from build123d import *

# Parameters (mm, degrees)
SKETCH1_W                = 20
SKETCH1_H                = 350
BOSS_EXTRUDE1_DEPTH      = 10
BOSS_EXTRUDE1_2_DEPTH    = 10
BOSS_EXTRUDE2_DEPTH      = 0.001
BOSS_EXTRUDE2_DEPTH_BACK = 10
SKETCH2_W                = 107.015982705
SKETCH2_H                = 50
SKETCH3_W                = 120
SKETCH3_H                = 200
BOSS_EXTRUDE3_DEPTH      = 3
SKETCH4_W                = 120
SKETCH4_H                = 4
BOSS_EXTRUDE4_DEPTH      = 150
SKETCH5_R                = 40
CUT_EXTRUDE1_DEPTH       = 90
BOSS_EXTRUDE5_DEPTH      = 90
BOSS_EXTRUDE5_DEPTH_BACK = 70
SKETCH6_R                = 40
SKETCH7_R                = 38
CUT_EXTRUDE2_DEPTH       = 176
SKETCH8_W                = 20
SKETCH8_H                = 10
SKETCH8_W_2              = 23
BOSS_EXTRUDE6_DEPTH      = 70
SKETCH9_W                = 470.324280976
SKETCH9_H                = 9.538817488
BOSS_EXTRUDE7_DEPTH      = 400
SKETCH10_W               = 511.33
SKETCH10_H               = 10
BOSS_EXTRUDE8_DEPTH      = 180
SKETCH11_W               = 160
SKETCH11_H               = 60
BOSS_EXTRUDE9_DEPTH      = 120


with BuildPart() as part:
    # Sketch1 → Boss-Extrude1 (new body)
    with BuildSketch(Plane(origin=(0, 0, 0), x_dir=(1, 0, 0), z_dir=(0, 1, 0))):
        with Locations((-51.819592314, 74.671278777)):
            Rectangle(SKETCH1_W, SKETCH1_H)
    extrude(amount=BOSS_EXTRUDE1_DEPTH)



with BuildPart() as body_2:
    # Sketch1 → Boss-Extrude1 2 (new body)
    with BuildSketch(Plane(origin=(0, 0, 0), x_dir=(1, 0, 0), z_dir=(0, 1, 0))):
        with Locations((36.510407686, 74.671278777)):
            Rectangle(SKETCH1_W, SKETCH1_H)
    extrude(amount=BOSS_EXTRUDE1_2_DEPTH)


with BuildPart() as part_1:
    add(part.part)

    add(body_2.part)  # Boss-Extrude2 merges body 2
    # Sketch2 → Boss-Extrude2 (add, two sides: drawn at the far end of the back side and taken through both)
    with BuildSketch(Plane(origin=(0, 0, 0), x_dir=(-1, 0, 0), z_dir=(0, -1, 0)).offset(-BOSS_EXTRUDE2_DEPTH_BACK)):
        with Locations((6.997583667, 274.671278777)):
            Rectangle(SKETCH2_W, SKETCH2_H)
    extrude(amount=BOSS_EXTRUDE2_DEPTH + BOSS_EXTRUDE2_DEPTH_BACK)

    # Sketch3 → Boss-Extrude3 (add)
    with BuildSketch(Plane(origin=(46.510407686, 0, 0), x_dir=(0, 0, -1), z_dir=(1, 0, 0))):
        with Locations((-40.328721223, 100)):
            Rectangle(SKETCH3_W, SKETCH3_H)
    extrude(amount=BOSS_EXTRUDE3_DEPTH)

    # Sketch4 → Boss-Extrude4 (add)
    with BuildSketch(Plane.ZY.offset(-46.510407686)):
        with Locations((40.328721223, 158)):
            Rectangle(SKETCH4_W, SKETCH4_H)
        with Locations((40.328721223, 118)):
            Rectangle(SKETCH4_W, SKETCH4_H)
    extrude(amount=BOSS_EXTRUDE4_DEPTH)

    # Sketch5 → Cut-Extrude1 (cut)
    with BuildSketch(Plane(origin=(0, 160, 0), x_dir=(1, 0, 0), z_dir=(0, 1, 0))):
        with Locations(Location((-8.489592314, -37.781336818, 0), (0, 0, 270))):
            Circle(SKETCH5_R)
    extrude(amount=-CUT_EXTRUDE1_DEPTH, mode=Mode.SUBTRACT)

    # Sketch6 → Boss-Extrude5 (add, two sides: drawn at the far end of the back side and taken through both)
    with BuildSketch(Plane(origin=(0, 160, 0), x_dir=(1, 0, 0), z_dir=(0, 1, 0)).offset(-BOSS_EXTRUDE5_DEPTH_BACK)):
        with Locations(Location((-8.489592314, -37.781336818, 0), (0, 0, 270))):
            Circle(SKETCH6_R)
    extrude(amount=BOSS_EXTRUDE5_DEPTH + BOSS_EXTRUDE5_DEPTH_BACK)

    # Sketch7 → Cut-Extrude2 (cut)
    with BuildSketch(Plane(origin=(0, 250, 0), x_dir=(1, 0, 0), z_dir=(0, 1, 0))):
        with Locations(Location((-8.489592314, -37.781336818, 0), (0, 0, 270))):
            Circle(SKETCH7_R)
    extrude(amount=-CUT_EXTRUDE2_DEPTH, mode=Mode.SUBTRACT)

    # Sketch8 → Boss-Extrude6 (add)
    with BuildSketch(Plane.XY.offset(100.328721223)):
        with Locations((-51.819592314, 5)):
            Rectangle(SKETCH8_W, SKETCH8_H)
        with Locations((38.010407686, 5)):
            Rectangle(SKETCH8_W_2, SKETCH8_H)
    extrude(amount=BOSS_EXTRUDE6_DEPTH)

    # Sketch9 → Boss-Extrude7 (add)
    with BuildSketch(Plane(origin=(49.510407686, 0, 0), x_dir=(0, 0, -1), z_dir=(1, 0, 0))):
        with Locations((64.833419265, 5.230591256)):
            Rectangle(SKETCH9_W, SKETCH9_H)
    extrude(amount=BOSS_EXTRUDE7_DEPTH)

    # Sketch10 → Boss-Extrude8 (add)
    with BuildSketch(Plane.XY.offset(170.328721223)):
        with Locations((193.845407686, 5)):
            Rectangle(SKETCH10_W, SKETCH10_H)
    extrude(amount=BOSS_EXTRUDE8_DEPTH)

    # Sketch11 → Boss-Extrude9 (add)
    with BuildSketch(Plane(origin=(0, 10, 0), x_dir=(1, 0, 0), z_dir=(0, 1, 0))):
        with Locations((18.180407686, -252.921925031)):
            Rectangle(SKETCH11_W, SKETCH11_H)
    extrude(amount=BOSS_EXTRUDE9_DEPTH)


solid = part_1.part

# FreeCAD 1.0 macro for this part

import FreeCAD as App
import Part
import Sketcher
Q = App.Units.Quantity

doc = App.newDocument("Part")
body = doc.addObject("PartDesign::Body", "Body")

sketch1 = body.newObject("Sketcher::SketchObject", "Sketch")
sketch1.AttachmentSupport = (doc.getObject("XZ_Plane"), [""])
sketch1.MapMode = "FlatFace"
sketch1.addGeometry([
    Part.LineSegment(App.Vector(-61.819592, -249.671279, 0), App.Vector(-61.819592, 100.328721, 0)),
    Part.LineSegment(App.Vector(-61.819592, 100.328721, 0), App.Vector(-41.819592, 100.328721, 0)),
    Part.LineSegment(App.Vector(-41.819592, 100.328721, 0), App.Vector(-41.819592, -249.671279, 0)),
    Part.LineSegment(App.Vector(-41.819592, -249.671279, 0), App.Vector(-61.819592, -249.671279, 0)),
], False)
sketch1.addConstraint([
    Sketcher.Constraint("Coincident", 0, 2, 1, 1),
    Sketcher.Constraint("Coincident", 1, 2, 2, 1),
    Sketcher.Constraint("Coincident", 2, 2, 3, 1),
    Sketcher.Constraint("Coincident", 3, 2, 0, 1),
    Sketcher.Constraint("Vertical", 0),
    Sketcher.Constraint("Horizontal", 1),
    Sketcher.Constraint("Vertical", 2),
    Sketcher.Constraint("Horizontal", 3),
    Sketcher.Constraint("DistanceX", 1, 1, 1, 2, Q("20 mm")),
    Sketcher.Constraint("DistanceY", 0, 1, 0, 2, Q("350 mm")),
    Sketcher.Constraint("DistanceY", -1, 1, 0, 2, Q("100.328721 mm")),
    Sketcher.Constraint("DistanceX", 0, 2, -1, 1, Q("61.819592 mm")),
])
pad1 = body.newObject("PartDesign::Pad", "Pad")
pad1.Profile = sketch1
pad1.Length = 10
pad1.Reversed = True
body2 = doc.addObject("PartDesign::Body", "Body001")

sketch2 = body2.newObject("Sketcher::SketchObject", "Sketch001")
sketch2.AttachmentSupport = (doc.getObject("XZ_Plane001"), [""])
sketch2.MapMode = "FlatFace"
sketch2.addGeometry([
    Part.LineSegment(App.Vector(26.510408, -249.671279, 0), App.Vector(26.510408, 100.328721, 0)),
    Part.LineSegment(App.Vector(26.510408, 100.328721, 0), App.Vector(46.510408, 100.328721, 0)),
    Part.LineSegment(App.Vector(46.510408, 100.328721, 0), App.Vector(46.510408, -249.671279, 0)),
    Part.LineSegment(App.Vector(46.510408, -249.671279, 0), App.Vector(26.510408, -249.671279, 0)),
], False)
sketch2.addConstraint([
    Sketcher.Constraint("Coincident", 0, 2, 1, 1),
    Sketcher.Constraint("Coincident", 1, 2, 2, 1),
    Sketcher.Constraint("Coincident", 2, 2, 3, 1),
    Sketcher.Constraint("Coincident", 3, 2, 0, 1),
    Sketcher.Constraint("Vertical", 0),
    Sketcher.Constraint("Horizontal", 1),
    Sketcher.Constraint("Vertical", 2),
    Sketcher.Constraint("Horizontal", 3),
    Sketcher.Constraint("DistanceX", 1, 1, 1, 2, Q("20 mm")),
    Sketcher.Constraint("DistanceY", 0, 1, 0, 2, Q("350 mm")),
    Sketcher.Constraint("DistanceY", -1, 1, 0, 2, Q("100.328721 mm")),
    Sketcher.Constraint("DistanceX", -1, 1, 0, 2, Q("26.510408 mm")),
])
pad2 = body2.newObject("PartDesign::Pad", "Pad001")
pad2.Profile = sketch2
pad2.Length = 10
pad2.Reversed = True
body.AllowCompound = True
doc.recompute()

boolean = body.newObject("PartDesign::Boolean", "Boolean")
boolean.Type = "Fuse"
boolean.addObjects([body2])

sketch3 = body.newObject("Sketcher::SketchObject", "Sketch002")
sketch3.AttachmentSupport = (doc.getObject("XZ_Plane"), [""])
sketch3.MapMode = "FlatFace"
sketch3.addGeometry([
    Part.LineSegment(App.Vector(46.510408, -299.671279, 0), App.Vector(46.510408, -249.671279, 0)),
    Part.LineSegment(App.Vector(46.510408, -249.671279, 0), App.Vector(-60.505575, -249.671279, 0)),
    Part.LineSegment(App.Vector(-60.505575, -249.671279, 0), App.Vector(-60.505575, -299.671279, 0)),
    Part.LineSegment(App.Vector(-60.505575, -299.671279, 0), App.Vector(46.510408, -299.671279, 0)),
], False)
sketch3.addConstraint([
    Sketcher.Constraint("Coincident", 0, 2, 1, 1),
    Sketcher.Constraint("Coincident", 1, 2, 2, 1),
    Sketcher.Constraint("Coincident", 2, 2, 3, 1),
    Sketcher.Constraint("Coincident", 3, 2, 0, 1),
    Sketcher.Constraint("Vertical", 0),
    Sketcher.Constraint("Horizontal", 1),
    Sketcher.Constraint("Vertical", 2),
    Sketcher.Constraint("Horizontal", 3),
    Sketcher.Constraint("DistanceY", 0, 1, 0, 2, Q("50 mm")),
    Sketcher.Constraint("DistanceX", 1, 2, 1, 1, Q("107.015983 mm")),
    Sketcher.Constraint("DistanceY", 0, 2, -1, 1, Q("249.671279 mm")),
    Sketcher.Constraint("DistanceX", -1, 1, 0, 2, Q("46.510408 mm")),
])
pad3 = body.newObject("PartDesign::Pad", "Pad002")
pad3.Profile = sketch3
pad3.Type = "TwoLengths"
pad3.Length = 0.001
pad3.Length2 = 10

sketch4 = body.newObject("Sketcher::SketchObject", "Sketch003")
sketch4.AttachmentSupport = (doc.getObject("YZ_Plane"), [""])
sketch4.MapMode = "FlatFace"
sketch4.AttachmentOffset = App.Placement(App.Vector(0, 0, 46.510408), App.Rotation())
sketch4.addGeometry([
    Part.LineSegment(App.Vector(200, 100.328721, 0), App.Vector(0, 100.328721, 0)),
    Part.LineSegment(App.Vector(0, 100.328721, 0), App.Vector(0, -19.671279, 0)),
    Part.LineSegment(App.Vector(0, -19.671279, 0), App.Vector(200, -19.671279, 0)),
    Part.LineSegment(App.Vector(200, -19.671279, 0), App.Vector(200, 100.328721, 0)),
], False)
sketch4.addConstraint([
    Sketcher.Constraint("Coincident", 0, 2, 1, 1),
    Sketcher.Constraint("Coincident", 1, 2, 2, 1),
    Sketcher.Constraint("Coincident", 2, 2, 3, 1),
    Sketcher.Constraint("Coincident", 3, 2, 0, 1),
    Sketcher.Constraint("Horizontal", 0),
    Sketcher.Constraint("Vertical", 1),
    Sketcher.Constraint("Horizontal", 2),
    Sketcher.Constraint("Vertical", 3),
    Sketcher.Constraint("PointOnObject", 0, 2, -2),
    Sketcher.Constraint("DistanceX", 0, 2, 0, 1, Q("200 mm")),
    Sketcher.Constraint("DistanceY", 1, 2, 1, 1, Q("120 mm")),
    Sketcher.Constraint("DistanceY", -1, 1, 0, 2, Q("100.328721 mm")),
])
pad4 = body.newObject("PartDesign::Pad", "Pad003")
pad4.Profile = sketch4
pad4.Length = 3

sketch5 = body.newObject("Sketcher::SketchObject", "Sketch004")
sketch5.AttachmentSupport = (doc.getObject("YZ_Plane"), [""])
sketch5.MapMode = "FlatFace"
sketch5.AttachmentOffset = App.Placement(App.Vector(0, 0, 46.510408), App.Rotation())
sketch5.addGeometry([
    Part.LineSegment(App.Vector(160, -19.671279, 0), App.Vector(156, -19.671279, 0)),
    Part.LineSegment(App.Vector(156, -19.671279, 0), App.Vector(156, 100.328721, 0)),
    Part.LineSegment(App.Vector(156, 100.328721, 0), App.Vector(160, 100.328721, 0)),
    Part.LineSegment(App.Vector(160, 100.328721, 0), App.Vector(160, -19.671279, 0)),
    Part.LineSegment(App.Vector(120, -19.671279, 0), App.Vector(116, -19.671279, 0)),
    Part.LineSegment(App.Vector(116, -19.671279, 0), App.Vector(116, 100.328721, 0)),
    Part.LineSegment(App.Vector(116, 100.328721, 0), App.Vector(120, 100.328721, 0)),
    Part.LineSegment(App.Vector(120, 100.328721, 0), App.Vector(120, -19.671279, 0)),
], False)
sketch5.addConstraint([
    Sketcher.Constraint("Coincident", 0, 2, 1, 1),
    Sketcher.Constraint("Coincident", 1, 2, 2, 1),
    Sketcher.Constraint("Coincident", 2, 2, 3, 1),
    Sketcher.Constraint("Coincident", 3, 2, 0, 1),
    Sketcher.Constraint("Coincident", 4, 2, 5, 1),
    Sketcher.Constraint("Coincident", 5, 2, 6, 1),
    Sketcher.Constraint("Coincident", 6, 2, 7, 1),
    Sketcher.Constraint("Coincident", 7, 2, 4, 1),
    Sketcher.Constraint("Horizontal", 0),
    Sketcher.Constraint("Vertical", 1),
    Sketcher.Constraint("Horizontal", 2),
    Sketcher.Constraint("Vertical", 3),
    Sketcher.Constraint("Horizontal", 4),
    Sketcher.Constraint("Vertical", 5),
    Sketcher.Constraint("Horizontal", 6),
    Sketcher.Constraint("Vertical", 7),
    Sketcher.Constraint("Horizontal", 3, 2, 4, 2),
    Sketcher.Constraint("Horizontal", 2, 2, 5, 2),
    Sketcher.Constraint("Equal", 2, 4),
    Sketcher.Constraint("DistanceX", 0, 2, 0, 1, Q("4 mm")),
    Sketcher.Constraint("DistanceY", 1, 1, 1, 2, Q("120 mm")),
    Sketcher.Constraint("DistanceX", -1, 1, 0, 2, Q("156 mm")),
    Sketcher.Constraint("DistanceX", -1, 1, 4, 2, Q("116 mm")),
    Sketcher.Constraint("DistanceY", 0, 2, -1, 1, Q("19.671279 mm")),
])
pad5 = body.newObject("PartDesign::Pad", "Pad004")
pad5.Profile = sketch5
pad5.Length = 150
pad5.Reversed = True

sketch6 = body.newObject("Sketcher::SketchObject", "Sketch005")
sketch6.AttachmentSupport = (doc.getObject("XZ_Plane"), [""])
sketch6.MapMode = "FlatFace"
sketch6.AttachmentOffset = App.Placement(App.Vector(0, 0, -160), App.Rotation())
sketch6.addGeometry(Part.Circle(App.Vector(-8.489592, 37.781337, 0), App.Vector(0, 0, 1), 40), False)
sketch6.addConstraint([
    Sketcher.Constraint("Diameter", 0, Q("80 mm")),
    Sketcher.Constraint("DistanceX", 0, 3, -1, 1, Q("8.489592 mm")),
    Sketcher.Constraint("DistanceY", -1, 1, 0, 3, Q("37.781337 mm")),
])
pocket1 = body.newObject("PartDesign::Pocket", "Pocket")
pocket1.Profile = sketch6
pocket1.Length = 90
pocket1.Reversed = True

sketch7 = body.newObject("Sketcher::SketchObject", "Sketch006")
sketch7.AttachmentSupport = (doc.getObject("XZ_Plane"), [""])
sketch7.MapMode = "FlatFace"
sketch7.AttachmentOffset = App.Placement(App.Vector(0, 0, -160), App.Rotation())
sketch7.addGeometry(Part.Circle(App.Vector(-8.489592, 37.781337, 0), App.Vector(0, 0, 1), 40), False)
sketch7.addConstraint([
    Sketcher.Constraint("Diameter", 0, Q("80 mm")),
    Sketcher.Constraint("DistanceX", 0, 3, -1, 1, Q("8.489592 mm")),
    Sketcher.Constraint("DistanceY", -1, 1, 0, 3, Q("37.781337 mm")),
])
pad6 = body.newObject("PartDesign::Pad", "Pad005")
pad6.Profile = sketch7
pad6.Type = "TwoLengths"
pad6.Length = 90
pad6.Length2 = 70
pad6.Reversed = True

sketch8 = body.newObject("Sketcher::SketchObject", "Sketch007")
sketch8.AttachmentSupport = (doc.getObject("XZ_Plane"), [""])
sketch8.MapMode = "FlatFace"
sketch8.AttachmentOffset = App.Placement(App.Vector(0, 0, -250), App.Rotation())
sketch8.addGeometry(Part.Circle(App.Vector(-8.489592, 37.781337, 0), App.Vector(0, 0, 1), 38), False)
sketch8.addConstraint([
    Sketcher.Constraint("Diameter", 0, Q("76 mm")),
    Sketcher.Constraint("DistanceX", 0, 3, -1, 1, Q("8.489592 mm")),
    Sketcher.Constraint("DistanceY", -1, 1, 0, 3, Q("37.781337 mm")),
])
pocket2 = body.newObject("PartDesign::Pocket", "Pocket001")
pocket2.Profile = sketch8
pocket2.Length = 176
pocket2.Reversed = True

sketch9 = body.newObject("Sketcher::SketchObject", "Sketch008")
sketch9.AttachmentSupport = (doc.getObject("XY_Plane"), [""])
sketch9.MapMode = "FlatFace"
sketch9.AttachmentOffset = App.Placement(App.Vector(0, 0, 100.328721), App.Rotation())
sketch9.addGeometry([
    Part.LineSegment(App.Vector(-61.819592, 10, 0), App.Vector(-61.819592, 0, 0)),
    Part.LineSegment(App.Vector(-61.819592, 0, 0), App.Vector(-41.819592, 0, 0)),
    Part.LineSegment(App.Vector(-41.819592, 0, 0), App.Vector(-41.819592, 10, 0)),
    Part.LineSegment(App.Vector(-41.819592, 10, 0), App.Vector(-61.819592, 10, 0)),
    Part.LineSegment(App.Vector(26.510408, 10, 0), App.Vector(26.510408, 0, 0)),
    Part.LineSegment(App.Vector(26.510408, 0, 0), App.Vector(49.510408, 0, 0)),
    Part.LineSegment(App.Vector(49.510408, 0, 0), App.Vector(49.510408, 10, 0)),
    Part.LineSegment(App.Vector(49.510408, 10, 0), App.Vector(26.510408, 10, 0)),
], False)
sketch9.addConstraint([
    Sketcher.Constraint("Coincident", 0, 2, 1, 1),
    Sketcher.Constraint("Coincident", 1, 2, 2, 1),
    Sketcher.Constraint("Coincident", 2, 2, 3, 1),
    Sketcher.Constraint("Coincident", 3, 2, 0, 1),
    Sketcher.Constraint("Coincident", 4, 2, 5, 1),
    Sketcher.Constraint("Coincident", 5, 2, 6, 1),
    Sketcher.Constraint("Coincident", 6, 2, 7, 1),
    Sketcher.Constraint("Coincident", 7, 2, 4, 1),
    Sketcher.Constraint("Vertical", 0),
    Sketcher.Constraint("Horizontal", 1),
    Sketcher.Constraint("Vertical", 2),
    Sketcher.Constraint("Horizontal", 3),
    Sketcher.Constraint("Vertical", 4),
    Sketcher.Constraint("Horizontal", 5),
    Sketcher.Constraint("Vertical", 6),
    Sketcher.Constraint("Horizontal", 7),
    Sketcher.Constraint("PointOnObject", 0, 2, -1),
    Sketcher.Constraint("PointOnObject", 4, 2, -1),
    Sketcher.Constraint("Horizontal", 3, 2, 6, 2),
    Sketcher.Constraint("DistanceX", 1, 1, 1, 2, Q("20 mm")),
    Sketcher.Constraint("DistanceX", 5, 1, 5, 2, Q("23 mm")),
    Sketcher.Constraint("DistanceY", 0, 2, 0, 1, Q("10 mm")),
    Sketcher.Constraint("DistanceX", 1, 2, 4, 2, Q("68.33 mm")),
    Sketcher.Constraint("DistanceX", 0, 2, -1, 1, Q("61.819592 mm")),
])
pad7 = body.newObject("PartDesign::Pad", "Pad006")
pad7.Profile = sketch9
pad7.Length = 70

sketch10 = body.newObject("Sketcher::SketchObject", "Sketch009")
sketch10.AttachmentSupport = (doc.getObject("YZ_Plane"), [""])
sketch10.MapMode = "FlatFace"
sketch10.AttachmentOffset = App.Placement(App.Vector(0, 0, 49.510408), App.Rotation())
sketch10.addGeometry([
    Part.LineSegment(App.Vector(10, 170.328721, 0), App.Vector(0.461183, 170.328721, 0)),
    Part.LineSegment(App.Vector(0.461183, 170.328721, 0), App.Vector(0.461183, -299.99556, 0)),
    Part.LineSegment(App.Vector(0.461183, -299.99556, 0), App.Vector(10, -299.99556, 0)),
    Part.LineSegment(App.Vector(10, -299.99556, 0), App.Vector(10, 170.328721, 0)),
], False)
sketch10.addConstraint([
    Sketcher.Constraint("Coincident", 0, 2, 1, 1),
    Sketcher.Constraint("Coincident", 1, 2, 2, 1),
    Sketcher.Constraint("Coincident", 2, 2, 3, 1),
    Sketcher.Constraint("Coincident", 3, 2, 0, 1),
    Sketcher.Constraint("Horizontal", 0),
    Sketcher.Constraint("Vertical", 1),
    Sketcher.Constraint("Horizontal", 2),
    Sketcher.Constraint("Vertical", 3),
    Sketcher.Constraint("DistanceX", -1, 1, 2, 2, Q("10 mm")),
    Sketcher.Constraint("DistanceY", 1, 2, 1, 1, Q("470.324281 mm")),
    Sketcher.Constraint("DistanceX", 0, 2, 0, 1, Q("9.538817 mm")),
    Sketcher.Constraint("DistanceY", -1, 1, 0, 2, Q("170.328721 mm")),
])
pad8 = body.newObject("PartDesign::Pad", "Pad007")
pad8.Profile = sketch10
pad8.Length = 400

sketch11 = body.newObject("Sketcher::SketchObject", "Sketch010")
sketch11.AttachmentSupport = (doc.getObject("XY_Plane"), [""])
sketch11.MapMode = "FlatFace"
sketch11.AttachmentOffset = App.Placement(App.Vector(0, 0, 170.328721), App.Rotation())
sketch11.addGeometry([
    Part.LineSegment(App.Vector(-61.819592, 10, 0), App.Vector(-61.819592, 0, 0)),
    Part.LineSegment(App.Vector(-61.819592, 0, 0), App.Vector(449.510408, 0, 0)),
    Part.LineSegment(App.Vector(449.510408, 0, 0), App.Vector(449.510408, 10, 0)),
    Part.LineSegment(App.Vector(449.510408, 10, 0), App.Vector(-61.819592, 10, 0)),
], False)
sketch11.addConstraint([
    Sketcher.Constraint("Coincident", 0, 2, 1, 1),
    Sketcher.Constraint("Coincident", 1, 2, 2, 1),
    Sketcher.Constraint("Coincident", 2, 2, 3, 1),
    Sketcher.Constraint("Coincident", 3, 2, 0, 1),
    Sketcher.Constraint("Vertical", 0),
    Sketcher.Constraint("Horizontal", 1),
    Sketcher.Constraint("Vertical", 2),
    Sketcher.Constraint("Horizontal", 3),
    Sketcher.Constraint("PointOnObject", 0, 2, -1),
    Sketcher.Constraint("DistanceY", 0, 2, 0, 1, Q("10 mm")),
    Sketcher.Constraint("DistanceX", 1, 1, 1, 2, Q("511.33 mm")),
    Sketcher.Constraint("DistanceX", 0, 2, -1, 1, Q("61.819592 mm")),
])
pad9 = body.newObject("PartDesign::Pad", "Pad008")
pad9.Profile = sketch11
pad9.Length = 180

sketch12 = body.newObject("Sketcher::SketchObject", "Sketch011")
sketch12.AttachmentSupport = (doc.getObject("XZ_Plane"), [""])
sketch12.MapMode = "FlatFace"
sketch12.AttachmentOffset = App.Placement(App.Vector(0, 0, -10), App.Rotation())
sketch12.addGeometry([
    Part.LineSegment(App.Vector(-61.819592, 222.921925, 0), App.Vector(-61.819592, 282.921925, 0)),
    Part.LineSegment(App.Vector(-61.819592, 282.921925, 0), App.Vector(98.180408, 282.921925, 0)),
    Part.LineSegment(App.Vector(98.180408, 282.921925, 0), App.Vector(98.180408, 222.921925, 0)),
    Part.LineSegment(App.Vector(98.180408, 222.921925, 0), App.Vector(-61.819592, 222.921925, 0)),
], False)
sketch12.addConstraint([
    Sketcher.Constraint("Coincident", 0, 2, 1, 1),
    Sketcher.Constraint("Coincident", 1, 2, 2, 1),
    Sketcher.Constraint("Coincident", 2, 2, 3, 1),
    Sketcher.Constraint("Coincident", 3, 2, 0, 1),
    Sketcher.Constraint("Vertical", 0),
    Sketcher.Constraint("Horizontal", 1),
    Sketcher.Constraint("Vertical", 2),
    Sketcher.Constraint("Horizontal", 3),
    Sketcher.Constraint("DistanceX", 1, 1, 1, 2, Q("160 mm")),
    Sketcher.Constraint("DistanceY", 0, 1, 0, 2, Q("60 mm")),
    Sketcher.Constraint("DistanceX", 0, 2, -1, 1, Q("61.819592 mm")),
    Sketcher.Constraint("DistanceY", -1, 1, 0, 2, Q("282.921925 mm")),
])
pad10 = body.newObject("PartDesign::Pad", "Pad009")
pad10.Profile = sketch12
pad10.Length = 120
pad10.Reversed = True

doc.recompute()
